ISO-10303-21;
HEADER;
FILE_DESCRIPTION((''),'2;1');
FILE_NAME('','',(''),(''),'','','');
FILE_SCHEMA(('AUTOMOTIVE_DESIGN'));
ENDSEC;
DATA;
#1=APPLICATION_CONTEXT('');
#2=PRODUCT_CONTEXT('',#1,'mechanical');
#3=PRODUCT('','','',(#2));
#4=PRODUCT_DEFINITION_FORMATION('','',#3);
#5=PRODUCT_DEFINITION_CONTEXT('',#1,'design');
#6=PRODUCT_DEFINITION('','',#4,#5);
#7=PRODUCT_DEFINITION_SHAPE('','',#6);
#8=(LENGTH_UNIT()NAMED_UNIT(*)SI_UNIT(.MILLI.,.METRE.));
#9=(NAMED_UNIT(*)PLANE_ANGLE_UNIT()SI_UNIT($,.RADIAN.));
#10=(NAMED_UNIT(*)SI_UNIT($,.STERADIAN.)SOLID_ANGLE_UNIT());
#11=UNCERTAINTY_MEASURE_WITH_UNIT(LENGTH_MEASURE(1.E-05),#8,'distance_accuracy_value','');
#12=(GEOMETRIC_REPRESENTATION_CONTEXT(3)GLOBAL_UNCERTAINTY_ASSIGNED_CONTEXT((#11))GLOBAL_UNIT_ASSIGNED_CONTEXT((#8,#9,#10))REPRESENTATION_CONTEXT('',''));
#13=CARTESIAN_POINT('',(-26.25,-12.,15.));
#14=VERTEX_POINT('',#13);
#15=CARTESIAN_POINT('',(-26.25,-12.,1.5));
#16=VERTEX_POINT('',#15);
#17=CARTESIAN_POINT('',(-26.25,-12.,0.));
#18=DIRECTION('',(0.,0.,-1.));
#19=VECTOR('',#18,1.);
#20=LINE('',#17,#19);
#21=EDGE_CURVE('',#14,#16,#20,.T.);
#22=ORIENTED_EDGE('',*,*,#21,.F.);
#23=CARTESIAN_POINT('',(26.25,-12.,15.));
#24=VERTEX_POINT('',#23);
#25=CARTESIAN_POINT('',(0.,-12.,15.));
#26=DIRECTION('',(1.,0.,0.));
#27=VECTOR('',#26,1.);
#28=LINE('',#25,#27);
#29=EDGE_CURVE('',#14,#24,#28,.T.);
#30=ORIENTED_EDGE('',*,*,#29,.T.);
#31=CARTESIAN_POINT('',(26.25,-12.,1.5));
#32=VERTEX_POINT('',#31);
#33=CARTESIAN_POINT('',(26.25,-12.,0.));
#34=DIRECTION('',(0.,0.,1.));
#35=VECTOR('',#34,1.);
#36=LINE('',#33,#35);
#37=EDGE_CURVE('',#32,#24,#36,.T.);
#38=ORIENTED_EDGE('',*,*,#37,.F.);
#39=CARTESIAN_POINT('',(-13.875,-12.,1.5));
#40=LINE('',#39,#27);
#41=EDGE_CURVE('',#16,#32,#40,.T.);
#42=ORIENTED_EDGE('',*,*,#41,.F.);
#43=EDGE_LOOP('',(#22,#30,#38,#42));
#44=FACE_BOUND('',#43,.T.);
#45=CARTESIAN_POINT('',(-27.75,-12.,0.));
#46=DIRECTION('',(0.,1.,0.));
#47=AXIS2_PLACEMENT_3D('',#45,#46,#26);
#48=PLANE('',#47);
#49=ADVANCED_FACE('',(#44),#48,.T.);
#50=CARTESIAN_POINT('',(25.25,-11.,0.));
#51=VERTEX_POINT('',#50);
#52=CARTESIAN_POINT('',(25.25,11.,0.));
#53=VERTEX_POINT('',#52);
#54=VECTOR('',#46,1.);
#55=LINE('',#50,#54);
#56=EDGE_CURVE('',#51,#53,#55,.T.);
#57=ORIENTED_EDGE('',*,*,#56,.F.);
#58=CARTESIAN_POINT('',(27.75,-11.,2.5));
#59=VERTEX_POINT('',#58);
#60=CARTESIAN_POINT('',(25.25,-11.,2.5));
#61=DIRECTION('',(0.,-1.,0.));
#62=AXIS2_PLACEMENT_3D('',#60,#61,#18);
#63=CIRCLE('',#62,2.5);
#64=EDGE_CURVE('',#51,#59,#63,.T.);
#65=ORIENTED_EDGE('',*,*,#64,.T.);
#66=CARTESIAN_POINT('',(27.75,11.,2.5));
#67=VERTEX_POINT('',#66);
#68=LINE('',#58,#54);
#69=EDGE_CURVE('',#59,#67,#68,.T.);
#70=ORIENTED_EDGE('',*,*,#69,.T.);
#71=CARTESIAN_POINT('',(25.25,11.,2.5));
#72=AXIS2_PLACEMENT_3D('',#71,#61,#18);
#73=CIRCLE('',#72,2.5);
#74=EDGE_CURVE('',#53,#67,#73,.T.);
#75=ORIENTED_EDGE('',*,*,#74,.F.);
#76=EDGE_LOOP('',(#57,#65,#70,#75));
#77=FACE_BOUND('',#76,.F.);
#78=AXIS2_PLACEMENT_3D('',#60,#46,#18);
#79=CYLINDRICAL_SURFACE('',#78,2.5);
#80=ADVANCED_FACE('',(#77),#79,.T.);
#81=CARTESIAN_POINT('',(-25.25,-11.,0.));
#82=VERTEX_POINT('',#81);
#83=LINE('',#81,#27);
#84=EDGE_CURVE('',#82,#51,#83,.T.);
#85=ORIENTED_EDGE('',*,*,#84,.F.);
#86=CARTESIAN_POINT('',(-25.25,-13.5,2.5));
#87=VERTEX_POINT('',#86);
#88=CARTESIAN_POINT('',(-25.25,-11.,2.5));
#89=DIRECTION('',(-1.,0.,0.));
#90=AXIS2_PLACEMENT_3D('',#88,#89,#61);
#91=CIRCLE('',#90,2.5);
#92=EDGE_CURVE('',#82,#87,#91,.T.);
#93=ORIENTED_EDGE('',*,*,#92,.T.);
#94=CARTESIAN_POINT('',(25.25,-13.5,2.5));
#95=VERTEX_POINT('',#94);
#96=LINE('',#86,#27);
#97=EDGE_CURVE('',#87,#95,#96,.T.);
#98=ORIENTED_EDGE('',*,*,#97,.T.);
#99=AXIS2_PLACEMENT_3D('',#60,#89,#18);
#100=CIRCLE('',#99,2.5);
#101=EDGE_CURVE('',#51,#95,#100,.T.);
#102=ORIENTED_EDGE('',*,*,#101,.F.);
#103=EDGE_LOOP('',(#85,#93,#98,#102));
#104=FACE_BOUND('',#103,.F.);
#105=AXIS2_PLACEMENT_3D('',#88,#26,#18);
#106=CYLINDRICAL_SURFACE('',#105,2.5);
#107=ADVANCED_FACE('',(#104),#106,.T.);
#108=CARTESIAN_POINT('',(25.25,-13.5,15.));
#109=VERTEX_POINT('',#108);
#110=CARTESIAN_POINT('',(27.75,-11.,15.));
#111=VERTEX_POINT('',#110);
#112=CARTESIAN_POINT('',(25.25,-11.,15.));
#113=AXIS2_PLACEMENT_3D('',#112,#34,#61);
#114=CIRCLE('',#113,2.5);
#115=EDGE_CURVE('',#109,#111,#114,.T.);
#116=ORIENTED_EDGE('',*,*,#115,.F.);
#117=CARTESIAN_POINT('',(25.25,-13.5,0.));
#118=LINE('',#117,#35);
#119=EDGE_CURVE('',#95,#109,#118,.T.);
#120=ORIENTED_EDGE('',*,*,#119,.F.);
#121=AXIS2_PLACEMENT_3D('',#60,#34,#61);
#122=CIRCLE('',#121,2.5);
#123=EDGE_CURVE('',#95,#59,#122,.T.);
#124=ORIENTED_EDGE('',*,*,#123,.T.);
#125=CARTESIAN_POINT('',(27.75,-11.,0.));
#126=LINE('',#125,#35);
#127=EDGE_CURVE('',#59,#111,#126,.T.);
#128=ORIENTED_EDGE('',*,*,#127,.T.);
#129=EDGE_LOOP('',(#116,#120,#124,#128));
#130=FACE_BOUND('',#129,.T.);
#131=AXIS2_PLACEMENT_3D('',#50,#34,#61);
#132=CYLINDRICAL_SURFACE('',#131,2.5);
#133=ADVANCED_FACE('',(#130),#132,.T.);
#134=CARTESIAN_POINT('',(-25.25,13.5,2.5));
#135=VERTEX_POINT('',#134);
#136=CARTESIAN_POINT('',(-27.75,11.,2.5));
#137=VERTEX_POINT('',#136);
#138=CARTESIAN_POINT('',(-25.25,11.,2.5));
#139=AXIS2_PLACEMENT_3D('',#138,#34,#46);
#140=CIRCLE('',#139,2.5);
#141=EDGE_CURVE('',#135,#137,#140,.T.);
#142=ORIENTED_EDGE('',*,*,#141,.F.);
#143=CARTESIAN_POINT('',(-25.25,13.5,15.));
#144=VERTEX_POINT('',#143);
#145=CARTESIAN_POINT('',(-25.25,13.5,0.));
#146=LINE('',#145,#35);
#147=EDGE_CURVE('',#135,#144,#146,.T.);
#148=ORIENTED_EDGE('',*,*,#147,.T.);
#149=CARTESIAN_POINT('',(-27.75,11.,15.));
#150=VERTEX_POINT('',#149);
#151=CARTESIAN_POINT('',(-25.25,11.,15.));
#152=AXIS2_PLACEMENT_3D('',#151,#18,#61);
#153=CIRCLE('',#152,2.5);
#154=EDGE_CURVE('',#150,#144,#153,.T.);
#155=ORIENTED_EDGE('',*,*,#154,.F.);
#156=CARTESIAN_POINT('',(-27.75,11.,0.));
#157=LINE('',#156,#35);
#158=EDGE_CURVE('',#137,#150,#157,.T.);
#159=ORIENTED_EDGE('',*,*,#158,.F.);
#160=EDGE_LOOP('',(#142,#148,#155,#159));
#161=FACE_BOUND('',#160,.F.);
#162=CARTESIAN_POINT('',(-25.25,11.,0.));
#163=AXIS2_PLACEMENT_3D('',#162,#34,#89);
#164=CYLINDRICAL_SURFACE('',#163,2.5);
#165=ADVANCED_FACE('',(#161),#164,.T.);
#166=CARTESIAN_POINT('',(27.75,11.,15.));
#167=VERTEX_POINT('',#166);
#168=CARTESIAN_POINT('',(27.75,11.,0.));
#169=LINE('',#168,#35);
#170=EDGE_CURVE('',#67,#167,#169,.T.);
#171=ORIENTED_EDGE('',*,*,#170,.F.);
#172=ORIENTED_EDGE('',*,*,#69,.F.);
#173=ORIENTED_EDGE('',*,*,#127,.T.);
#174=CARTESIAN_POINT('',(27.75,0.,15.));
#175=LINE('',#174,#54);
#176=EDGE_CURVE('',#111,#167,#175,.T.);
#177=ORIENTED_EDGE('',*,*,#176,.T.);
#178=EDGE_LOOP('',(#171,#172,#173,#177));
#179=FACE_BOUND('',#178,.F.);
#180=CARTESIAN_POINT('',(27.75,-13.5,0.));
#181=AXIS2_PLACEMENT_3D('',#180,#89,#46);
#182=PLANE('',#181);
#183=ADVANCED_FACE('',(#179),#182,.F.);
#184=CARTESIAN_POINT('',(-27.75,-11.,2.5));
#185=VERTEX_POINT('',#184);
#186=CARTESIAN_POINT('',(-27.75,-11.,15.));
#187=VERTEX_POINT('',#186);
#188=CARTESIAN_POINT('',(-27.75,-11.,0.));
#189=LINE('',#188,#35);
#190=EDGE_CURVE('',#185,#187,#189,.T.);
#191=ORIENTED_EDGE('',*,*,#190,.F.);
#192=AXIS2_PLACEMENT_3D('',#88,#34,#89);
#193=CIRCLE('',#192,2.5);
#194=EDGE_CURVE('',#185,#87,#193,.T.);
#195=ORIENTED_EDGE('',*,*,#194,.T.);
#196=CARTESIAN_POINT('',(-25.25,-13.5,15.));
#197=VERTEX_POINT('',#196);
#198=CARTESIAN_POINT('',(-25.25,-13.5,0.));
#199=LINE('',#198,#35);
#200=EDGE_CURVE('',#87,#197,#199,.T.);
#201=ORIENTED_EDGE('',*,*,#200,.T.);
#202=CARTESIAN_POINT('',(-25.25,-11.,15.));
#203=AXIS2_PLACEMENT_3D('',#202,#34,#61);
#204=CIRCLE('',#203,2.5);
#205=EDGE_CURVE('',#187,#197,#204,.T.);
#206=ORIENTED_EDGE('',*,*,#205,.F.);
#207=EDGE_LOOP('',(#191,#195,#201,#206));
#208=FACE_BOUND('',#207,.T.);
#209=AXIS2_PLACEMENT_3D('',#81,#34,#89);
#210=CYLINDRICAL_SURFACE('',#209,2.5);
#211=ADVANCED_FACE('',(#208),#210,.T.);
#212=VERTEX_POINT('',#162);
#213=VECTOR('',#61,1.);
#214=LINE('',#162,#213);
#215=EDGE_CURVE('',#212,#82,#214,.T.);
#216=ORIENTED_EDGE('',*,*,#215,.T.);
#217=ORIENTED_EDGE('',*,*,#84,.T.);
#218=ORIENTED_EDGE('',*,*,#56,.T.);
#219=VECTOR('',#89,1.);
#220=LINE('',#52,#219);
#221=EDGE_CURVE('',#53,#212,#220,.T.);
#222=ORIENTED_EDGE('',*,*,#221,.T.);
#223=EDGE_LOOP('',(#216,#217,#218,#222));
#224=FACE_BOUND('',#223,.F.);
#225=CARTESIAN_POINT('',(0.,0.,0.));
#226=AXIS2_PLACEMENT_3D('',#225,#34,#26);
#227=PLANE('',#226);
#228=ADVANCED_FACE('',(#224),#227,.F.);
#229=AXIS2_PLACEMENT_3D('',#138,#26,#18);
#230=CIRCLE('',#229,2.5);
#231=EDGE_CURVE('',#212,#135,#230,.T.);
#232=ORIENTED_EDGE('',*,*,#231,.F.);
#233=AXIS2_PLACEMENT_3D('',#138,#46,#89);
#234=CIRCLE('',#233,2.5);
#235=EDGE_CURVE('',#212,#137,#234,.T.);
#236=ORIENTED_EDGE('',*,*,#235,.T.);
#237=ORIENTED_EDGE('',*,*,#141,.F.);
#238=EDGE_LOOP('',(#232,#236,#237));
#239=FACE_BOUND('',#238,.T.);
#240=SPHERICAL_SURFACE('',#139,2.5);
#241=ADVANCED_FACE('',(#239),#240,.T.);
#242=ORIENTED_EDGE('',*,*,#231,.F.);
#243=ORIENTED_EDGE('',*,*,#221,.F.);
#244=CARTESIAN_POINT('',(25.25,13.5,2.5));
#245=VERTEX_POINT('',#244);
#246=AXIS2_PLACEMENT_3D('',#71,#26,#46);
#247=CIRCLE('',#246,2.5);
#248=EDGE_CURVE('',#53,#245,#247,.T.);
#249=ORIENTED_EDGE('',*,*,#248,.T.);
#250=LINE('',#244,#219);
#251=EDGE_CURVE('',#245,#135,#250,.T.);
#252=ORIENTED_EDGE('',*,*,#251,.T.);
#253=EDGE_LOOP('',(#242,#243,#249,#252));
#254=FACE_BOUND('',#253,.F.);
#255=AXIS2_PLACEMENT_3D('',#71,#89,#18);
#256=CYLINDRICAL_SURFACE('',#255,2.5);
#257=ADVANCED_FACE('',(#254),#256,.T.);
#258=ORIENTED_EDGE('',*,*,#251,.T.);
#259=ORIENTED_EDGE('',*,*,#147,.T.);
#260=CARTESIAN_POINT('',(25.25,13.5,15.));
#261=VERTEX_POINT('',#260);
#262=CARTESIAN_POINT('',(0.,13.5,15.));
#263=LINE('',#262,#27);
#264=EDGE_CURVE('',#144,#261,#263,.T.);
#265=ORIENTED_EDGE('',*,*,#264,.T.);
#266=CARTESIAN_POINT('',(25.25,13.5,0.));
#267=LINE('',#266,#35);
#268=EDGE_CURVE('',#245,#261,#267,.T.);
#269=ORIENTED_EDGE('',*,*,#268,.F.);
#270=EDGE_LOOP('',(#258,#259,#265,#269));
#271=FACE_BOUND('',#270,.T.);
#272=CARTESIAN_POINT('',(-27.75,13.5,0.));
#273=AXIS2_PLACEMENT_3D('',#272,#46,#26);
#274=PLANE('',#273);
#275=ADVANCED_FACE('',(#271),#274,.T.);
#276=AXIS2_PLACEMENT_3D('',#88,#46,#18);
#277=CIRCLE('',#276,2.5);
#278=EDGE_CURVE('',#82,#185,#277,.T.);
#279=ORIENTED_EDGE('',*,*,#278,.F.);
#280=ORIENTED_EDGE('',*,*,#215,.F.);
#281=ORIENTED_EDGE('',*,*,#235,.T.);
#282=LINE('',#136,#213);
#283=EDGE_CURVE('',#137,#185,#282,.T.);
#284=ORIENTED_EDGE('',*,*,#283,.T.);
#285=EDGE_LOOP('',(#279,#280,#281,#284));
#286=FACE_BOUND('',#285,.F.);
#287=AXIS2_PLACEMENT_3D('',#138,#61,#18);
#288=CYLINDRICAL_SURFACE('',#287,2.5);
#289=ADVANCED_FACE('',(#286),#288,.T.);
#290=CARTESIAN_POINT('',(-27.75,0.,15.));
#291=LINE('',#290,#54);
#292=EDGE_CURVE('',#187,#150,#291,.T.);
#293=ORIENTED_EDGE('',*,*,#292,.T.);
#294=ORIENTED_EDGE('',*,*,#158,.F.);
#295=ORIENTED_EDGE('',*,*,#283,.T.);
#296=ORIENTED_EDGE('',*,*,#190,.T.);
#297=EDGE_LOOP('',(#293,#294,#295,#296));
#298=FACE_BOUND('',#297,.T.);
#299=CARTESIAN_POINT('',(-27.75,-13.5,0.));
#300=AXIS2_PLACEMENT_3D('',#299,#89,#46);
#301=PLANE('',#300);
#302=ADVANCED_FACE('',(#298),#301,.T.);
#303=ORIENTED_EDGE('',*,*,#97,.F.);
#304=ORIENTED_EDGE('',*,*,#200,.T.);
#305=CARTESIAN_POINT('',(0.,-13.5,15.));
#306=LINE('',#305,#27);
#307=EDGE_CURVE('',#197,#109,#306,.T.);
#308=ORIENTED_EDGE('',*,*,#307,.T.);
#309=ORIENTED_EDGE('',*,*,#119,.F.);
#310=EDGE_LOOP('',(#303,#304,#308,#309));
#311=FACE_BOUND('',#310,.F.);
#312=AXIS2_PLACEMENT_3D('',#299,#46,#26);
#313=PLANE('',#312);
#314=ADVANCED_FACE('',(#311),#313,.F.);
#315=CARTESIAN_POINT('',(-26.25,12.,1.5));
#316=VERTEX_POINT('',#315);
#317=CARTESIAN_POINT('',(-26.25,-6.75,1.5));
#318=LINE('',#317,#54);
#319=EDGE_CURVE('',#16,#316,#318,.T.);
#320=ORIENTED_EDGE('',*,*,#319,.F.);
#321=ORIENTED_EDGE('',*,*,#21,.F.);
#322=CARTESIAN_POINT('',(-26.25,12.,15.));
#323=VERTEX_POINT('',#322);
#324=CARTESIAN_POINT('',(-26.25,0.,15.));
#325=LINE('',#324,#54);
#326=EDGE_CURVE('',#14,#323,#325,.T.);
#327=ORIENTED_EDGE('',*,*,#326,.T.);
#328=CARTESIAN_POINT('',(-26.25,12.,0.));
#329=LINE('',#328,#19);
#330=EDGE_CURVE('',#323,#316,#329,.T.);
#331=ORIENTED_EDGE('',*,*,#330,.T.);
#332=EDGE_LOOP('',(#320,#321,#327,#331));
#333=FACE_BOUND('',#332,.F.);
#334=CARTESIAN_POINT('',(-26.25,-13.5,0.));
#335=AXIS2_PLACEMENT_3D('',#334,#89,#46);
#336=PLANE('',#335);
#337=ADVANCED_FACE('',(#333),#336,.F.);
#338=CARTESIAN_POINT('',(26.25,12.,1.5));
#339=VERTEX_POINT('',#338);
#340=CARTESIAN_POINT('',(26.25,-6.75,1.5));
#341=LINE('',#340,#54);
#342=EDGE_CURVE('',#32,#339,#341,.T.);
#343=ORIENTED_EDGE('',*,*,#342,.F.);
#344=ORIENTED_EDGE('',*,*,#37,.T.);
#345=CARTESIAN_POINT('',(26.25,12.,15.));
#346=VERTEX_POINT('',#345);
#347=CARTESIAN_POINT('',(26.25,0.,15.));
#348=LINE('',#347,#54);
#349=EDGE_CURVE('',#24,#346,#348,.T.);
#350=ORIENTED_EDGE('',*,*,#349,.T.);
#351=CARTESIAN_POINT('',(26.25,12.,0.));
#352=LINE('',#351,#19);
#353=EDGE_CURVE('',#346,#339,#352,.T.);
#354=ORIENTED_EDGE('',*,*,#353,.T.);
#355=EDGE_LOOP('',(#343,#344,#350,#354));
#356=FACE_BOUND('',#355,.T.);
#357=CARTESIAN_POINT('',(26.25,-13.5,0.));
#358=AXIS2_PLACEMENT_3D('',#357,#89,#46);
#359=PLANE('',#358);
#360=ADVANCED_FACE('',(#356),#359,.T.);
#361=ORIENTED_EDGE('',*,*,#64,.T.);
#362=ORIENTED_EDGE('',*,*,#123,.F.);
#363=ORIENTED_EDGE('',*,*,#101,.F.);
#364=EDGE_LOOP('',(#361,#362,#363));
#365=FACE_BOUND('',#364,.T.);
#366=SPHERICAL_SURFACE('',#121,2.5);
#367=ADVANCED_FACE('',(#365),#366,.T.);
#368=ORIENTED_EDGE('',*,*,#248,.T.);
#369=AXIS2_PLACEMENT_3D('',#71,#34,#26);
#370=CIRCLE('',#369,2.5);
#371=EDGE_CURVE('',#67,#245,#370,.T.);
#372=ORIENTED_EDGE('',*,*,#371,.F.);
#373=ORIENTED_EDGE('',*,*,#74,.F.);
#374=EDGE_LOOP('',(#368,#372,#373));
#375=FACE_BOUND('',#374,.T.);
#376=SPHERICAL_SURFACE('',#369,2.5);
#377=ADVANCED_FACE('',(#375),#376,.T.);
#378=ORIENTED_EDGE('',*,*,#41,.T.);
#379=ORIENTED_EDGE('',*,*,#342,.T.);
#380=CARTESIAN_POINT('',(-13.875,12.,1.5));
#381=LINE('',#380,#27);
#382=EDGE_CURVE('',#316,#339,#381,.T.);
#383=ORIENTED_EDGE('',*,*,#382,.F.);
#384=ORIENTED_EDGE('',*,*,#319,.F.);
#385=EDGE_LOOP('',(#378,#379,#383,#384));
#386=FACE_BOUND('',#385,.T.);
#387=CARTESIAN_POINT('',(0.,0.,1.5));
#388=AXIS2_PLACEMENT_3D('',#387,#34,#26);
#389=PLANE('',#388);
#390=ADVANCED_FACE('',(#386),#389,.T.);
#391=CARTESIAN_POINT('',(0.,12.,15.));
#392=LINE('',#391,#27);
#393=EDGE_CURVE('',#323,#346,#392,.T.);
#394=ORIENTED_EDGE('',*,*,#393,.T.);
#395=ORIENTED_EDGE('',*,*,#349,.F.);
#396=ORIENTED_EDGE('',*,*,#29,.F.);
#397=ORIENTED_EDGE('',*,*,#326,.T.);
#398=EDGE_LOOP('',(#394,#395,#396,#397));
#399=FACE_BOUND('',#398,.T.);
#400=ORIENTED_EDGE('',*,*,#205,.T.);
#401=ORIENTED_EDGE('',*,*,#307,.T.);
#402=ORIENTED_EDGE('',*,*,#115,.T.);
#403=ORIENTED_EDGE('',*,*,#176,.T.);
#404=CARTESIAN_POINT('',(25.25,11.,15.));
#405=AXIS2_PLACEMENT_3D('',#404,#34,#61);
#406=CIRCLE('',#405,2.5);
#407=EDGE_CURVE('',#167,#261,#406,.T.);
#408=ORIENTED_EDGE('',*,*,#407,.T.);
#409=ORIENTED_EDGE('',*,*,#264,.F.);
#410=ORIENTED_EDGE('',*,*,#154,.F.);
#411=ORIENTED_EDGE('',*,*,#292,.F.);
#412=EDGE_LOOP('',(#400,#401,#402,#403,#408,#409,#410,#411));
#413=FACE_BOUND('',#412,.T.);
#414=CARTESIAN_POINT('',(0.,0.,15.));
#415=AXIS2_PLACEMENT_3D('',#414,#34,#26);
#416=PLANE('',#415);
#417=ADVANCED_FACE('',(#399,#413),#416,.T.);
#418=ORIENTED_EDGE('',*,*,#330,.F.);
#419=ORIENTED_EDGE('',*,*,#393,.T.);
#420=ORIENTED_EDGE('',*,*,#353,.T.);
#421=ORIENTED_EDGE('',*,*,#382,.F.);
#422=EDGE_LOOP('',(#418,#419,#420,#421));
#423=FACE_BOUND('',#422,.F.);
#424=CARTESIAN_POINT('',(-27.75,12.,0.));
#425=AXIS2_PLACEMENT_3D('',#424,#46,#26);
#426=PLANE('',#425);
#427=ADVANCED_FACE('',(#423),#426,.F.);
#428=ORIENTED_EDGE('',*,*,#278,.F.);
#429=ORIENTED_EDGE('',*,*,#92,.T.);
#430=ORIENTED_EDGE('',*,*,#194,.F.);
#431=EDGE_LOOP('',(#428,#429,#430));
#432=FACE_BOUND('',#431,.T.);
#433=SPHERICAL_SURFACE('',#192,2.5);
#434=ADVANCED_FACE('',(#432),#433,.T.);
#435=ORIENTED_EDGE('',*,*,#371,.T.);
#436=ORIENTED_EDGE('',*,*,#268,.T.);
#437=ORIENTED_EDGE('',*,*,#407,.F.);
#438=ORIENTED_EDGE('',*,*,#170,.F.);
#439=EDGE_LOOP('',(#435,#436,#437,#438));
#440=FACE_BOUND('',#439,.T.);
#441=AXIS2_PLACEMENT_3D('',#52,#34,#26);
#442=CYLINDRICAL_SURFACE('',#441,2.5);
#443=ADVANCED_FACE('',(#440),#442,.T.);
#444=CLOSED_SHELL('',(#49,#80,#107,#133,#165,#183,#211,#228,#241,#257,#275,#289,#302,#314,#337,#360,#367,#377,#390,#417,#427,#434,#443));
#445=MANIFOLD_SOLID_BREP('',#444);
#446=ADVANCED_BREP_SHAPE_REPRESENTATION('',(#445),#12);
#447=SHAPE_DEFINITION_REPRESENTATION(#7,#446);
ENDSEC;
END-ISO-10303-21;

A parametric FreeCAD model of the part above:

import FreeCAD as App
import Part
import Sketcher


def edges_at(feature, points):
    """Names of the edges that pass closest to the given points."""
    edges = feature.Shape.Edges
    near = lambda p: min(range(len(edges)), key=lambda i: edges[i].distToShape(Part.Vertex(*p))[0])
    return sorted({f"Edge{near(p) + 1}" for p in points})


def faces_at(feature, points):
    """Names of the faces that lie closest to the given points."""
    faces = feature.Shape.Faces
    near = lambda p: min(range(len(faces)), key=lambda i: faces[i].distToShape(Part.Vertex(*p))[0])
    return sorted({f"Face{near(p) + 1}" for p in points})

doc = App.newDocument("Part")
body = doc.addObject("PartDesign::Body", "Body")

sketch1 = doc.addObject("Sketcher::SketchObject", "Sketch")
body.addObject(sketch1)
sketch1.AttachmentSupport = (doc.XY_Plane, [""])
sketch1.MapMode = "FlatFace"
sketch1.addGeometry([
    Part.LineSegment(App.Vector(-27.75, 13.5, 0), App.Vector(-27.75, -13.5, 0)),
    Part.LineSegment(App.Vector(-27.75, -13.5, 0), App.Vector(27.75, -13.5, 0)),
    Part.LineSegment(App.Vector(27.75, -13.5, 0), App.Vector(27.75, 13.5, 0)),
    Part.LineSegment(App.Vector(27.75, 13.5, 0), App.Vector(-27.75, 13.5, 0)),
], False)
sketch1.addConstraint([
    Sketcher.Constraint("Coincident", 0, 2, 1, 1),
    Sketcher.Constraint("Coincident", 1, 2, 2, 1),
    Sketcher.Constraint("Coincident", 2, 2, 3, 1),
    Sketcher.Constraint("Coincident", 3, 2, 0, 1),
    Sketcher.Constraint("Vertical", 0),
    Sketcher.Constraint("Horizontal", 1),
    Sketcher.Constraint("Vertical", 2),
    Sketcher.Constraint("Horizontal", 3),
    Sketcher.Constraint("Symmetric", 0, 2, 2, 2, -1, 1),
    Sketcher.Constraint("DistanceY", 0, 2, 0, 1, 27.0),
    Sketcher.Constraint("DistanceX", 1, 1, 1, 2, 55.5),
])
pad1 = doc.addObject("PartDesign::Pad", "Pad")
body.addObject(pad1)
pad1.Profile = sketch1
pad1.Length = 15
doc.recompute()

thickness = doc.addObject("PartDesign::Thickness", "Thickness")
body.addObject(thickness)
thickness.Base = (pad1, faces_at(pad1, [(0, 0, 15)]))
thickness.Value = 1.5
thickness.Reversed = True
thickness.Join = "Arc"
doc.recompute()

fillet = doc.addObject("PartDesign::Fillet", "Fillet")
body.addObject(fillet)
fillet.Base = (thickness, edges_at(thickness, [
    (27.75, 13.5, 7.5),
    (-27.75, 13.5, 7.5),
    (27.75, -13.5, 7.5),
    (-27.75, -13.5, 7.5),
]))
fillet.Radius = 2.5
doc.recompute()

fillet2 = doc.addObject("PartDesign::Fillet", "Fillet001")
body.addObject(fillet2)
fillet2.Base = (fillet, edges_at(fillet, [
    (27.75, 0, 0),
    (27.018, -12.768, 0),
    (27.018, 12.768, 0),
    (0, -13.5, 0),
    (0, 13.5, 0),
    (-27.018, -12.768, 0),
    (-27.018, 12.768, 0),
    (-27.75, 0, 0),
]))
fillet2.Radius = 2.5

doc.recompute()
